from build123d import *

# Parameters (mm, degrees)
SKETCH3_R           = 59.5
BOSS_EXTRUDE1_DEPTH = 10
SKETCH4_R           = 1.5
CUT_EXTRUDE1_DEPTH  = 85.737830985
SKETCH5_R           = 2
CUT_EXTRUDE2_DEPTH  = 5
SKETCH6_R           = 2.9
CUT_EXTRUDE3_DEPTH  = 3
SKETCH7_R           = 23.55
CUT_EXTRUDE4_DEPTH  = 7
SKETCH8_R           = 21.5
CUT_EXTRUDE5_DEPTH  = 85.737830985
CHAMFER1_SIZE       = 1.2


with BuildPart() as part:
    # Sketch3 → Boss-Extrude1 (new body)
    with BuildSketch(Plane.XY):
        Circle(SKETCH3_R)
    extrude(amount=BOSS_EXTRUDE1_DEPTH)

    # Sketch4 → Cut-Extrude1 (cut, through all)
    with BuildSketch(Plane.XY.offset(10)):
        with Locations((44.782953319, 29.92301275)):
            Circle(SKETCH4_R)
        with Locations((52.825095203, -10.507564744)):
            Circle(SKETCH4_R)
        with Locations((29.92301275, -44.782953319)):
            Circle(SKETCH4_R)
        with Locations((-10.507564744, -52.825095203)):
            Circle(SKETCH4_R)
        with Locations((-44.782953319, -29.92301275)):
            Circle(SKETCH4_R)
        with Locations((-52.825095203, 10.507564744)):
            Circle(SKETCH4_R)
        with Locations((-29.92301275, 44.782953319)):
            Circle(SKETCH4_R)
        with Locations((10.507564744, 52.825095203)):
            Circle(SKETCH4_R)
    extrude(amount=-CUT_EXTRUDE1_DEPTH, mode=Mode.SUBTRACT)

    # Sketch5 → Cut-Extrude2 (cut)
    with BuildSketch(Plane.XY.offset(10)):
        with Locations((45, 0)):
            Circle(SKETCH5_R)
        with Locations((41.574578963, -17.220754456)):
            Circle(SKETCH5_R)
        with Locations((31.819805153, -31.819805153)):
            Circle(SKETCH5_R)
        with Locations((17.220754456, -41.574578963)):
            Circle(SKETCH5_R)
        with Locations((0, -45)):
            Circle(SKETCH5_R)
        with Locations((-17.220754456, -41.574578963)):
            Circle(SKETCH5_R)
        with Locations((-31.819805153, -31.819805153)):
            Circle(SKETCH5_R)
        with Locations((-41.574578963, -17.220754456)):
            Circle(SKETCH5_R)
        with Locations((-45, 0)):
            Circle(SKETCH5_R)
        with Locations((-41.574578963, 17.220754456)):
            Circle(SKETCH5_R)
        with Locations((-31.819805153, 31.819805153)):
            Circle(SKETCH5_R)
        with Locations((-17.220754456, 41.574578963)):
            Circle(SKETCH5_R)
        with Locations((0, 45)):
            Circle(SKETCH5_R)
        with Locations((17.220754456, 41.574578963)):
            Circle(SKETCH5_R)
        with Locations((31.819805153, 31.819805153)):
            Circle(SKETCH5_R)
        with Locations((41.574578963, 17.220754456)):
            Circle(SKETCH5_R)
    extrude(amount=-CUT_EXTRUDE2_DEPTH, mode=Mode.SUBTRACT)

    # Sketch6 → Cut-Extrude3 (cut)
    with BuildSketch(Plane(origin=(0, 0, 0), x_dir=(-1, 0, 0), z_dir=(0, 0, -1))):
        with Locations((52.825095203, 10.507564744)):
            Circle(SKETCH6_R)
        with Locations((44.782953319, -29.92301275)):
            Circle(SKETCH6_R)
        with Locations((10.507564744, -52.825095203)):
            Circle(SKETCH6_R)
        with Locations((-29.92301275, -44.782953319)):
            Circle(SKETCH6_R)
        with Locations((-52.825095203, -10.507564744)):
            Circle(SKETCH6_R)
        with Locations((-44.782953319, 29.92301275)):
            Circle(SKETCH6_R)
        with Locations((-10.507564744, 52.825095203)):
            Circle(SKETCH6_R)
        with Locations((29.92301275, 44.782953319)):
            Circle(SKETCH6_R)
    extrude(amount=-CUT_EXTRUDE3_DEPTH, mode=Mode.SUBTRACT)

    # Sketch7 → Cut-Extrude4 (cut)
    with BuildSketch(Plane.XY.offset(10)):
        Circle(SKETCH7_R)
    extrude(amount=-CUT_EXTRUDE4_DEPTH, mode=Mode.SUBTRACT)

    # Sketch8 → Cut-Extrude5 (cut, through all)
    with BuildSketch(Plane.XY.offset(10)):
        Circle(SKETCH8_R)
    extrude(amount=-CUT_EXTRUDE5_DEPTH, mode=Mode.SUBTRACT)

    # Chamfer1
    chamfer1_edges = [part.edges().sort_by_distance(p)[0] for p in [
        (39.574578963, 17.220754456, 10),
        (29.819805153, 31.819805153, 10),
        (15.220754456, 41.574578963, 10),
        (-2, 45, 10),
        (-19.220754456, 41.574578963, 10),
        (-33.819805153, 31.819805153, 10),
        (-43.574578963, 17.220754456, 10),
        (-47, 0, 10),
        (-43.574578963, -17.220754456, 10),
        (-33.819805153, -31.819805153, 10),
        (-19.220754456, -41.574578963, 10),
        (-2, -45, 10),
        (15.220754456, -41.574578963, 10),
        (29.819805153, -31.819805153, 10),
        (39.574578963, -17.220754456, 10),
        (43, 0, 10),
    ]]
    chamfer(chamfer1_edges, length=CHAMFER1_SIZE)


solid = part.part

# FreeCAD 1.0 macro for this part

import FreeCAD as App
import Part
import Sketcher

V = App.Vector


def edges_at(feature, points):
    """Names of the edges that pass closest to the given points."""
    edges = feature.Shape.Edges
    near = lambda p: min(range(len(edges)), key=lambda i: edges[i].distToShape(Part.Vertex(*p))[0])
    return sorted({f"Edge{near(p) + 1}" for p in points})

doc = App.newDocument("Part")
params = doc.addObject("Spreadsheet::Sheet", "Params")
for row, (alias, value) in enumerate([
    ("sketch1_diameter", "119 mm"),
    ("pad1_length", "10 mm"),
    ("sketch2_diameter", "3 mm"),
    ("sketch3_diameter", "4 mm"),
    ("pocket2_length", "5 mm"),
    ("sketch4_diameter", "5.8 mm"),
    ("pocket3_length", "3 mm"),
    ("sketch5_diameter", "47.1 mm"),
    ("pocket4_length", "7 mm"),
    ("sketch6_diameter", "43 mm"),
    ("chamfer_size", "1.2 mm"),
], start=1):
    params.set(f"A{row}", alias)
    params.set(f"B{row}", "=" + value)
    params.setAlias(f"B{row}", alias)

body = doc.addObject("PartDesign::Body", "Body")

# Sketch on XY plane
sketch1 = doc.addObject("Sketcher::SketchObject", "Sketch")
body.addObject(sketch1)
sketch1.AttachmentSupport = (doc.XY_Plane, [""])
sketch1.MapMode = "FlatFace"
sketch1.addGeometry(Part.Circle(V(0, 0, 0), V(0, 0, 1), 60), False)
sketch1.addConstraint([
    Sketcher.Constraint("Coincident", 0, 3, -1, 1),
    Sketcher.Constraint("Diameter", 0, 119.0),
])
sketch1.setExpression("Constraints[1]", "Params.sketch1_diameter")
pad1 = doc.addObject("PartDesign::Pad", "Pad")
body.addObject(pad1)
pad1.Profile = sketch1
pad1.setExpression("Length", "Params.pad1_length")

# Sketch on XY plane
sketch2 = doc.addObject("Sketcher::SketchObject", "Sketch001")
body.addObject(sketch2)
sketch2.AttachmentSupport = (doc.XY_Plane, [""])
sketch2.MapMode = "FlatFace"
sketch2.AttachmentOffset = App.Placement(V(0, 0, 10), App.Rotation())
sketch2.addGeometry([
    Part.Circle(V(44.8, 29.9, 0), V(0, 0, 1), 1.5),  # 0
    Part.Circle(V(52.8, -10.5, 0), V(0, 0, 1), 1.5),  # 1
    Part.Circle(V(29.9, -44.8, 0), V(0, 0, 1), 1.5),  # 2
    Part.Circle(V(-10.5, -52.8, 0), V(0, 0, 1), 1.5),  # 3
    Part.Circle(V(-44.8, -29.9, 0), V(0, 0, 1), 1.5),  # 4
    Part.Circle(V(-52.8, 10.5, 0), V(0, 0, 1), 1.5),  # 5
    Part.Circle(V(-29.9, 44.8, 0), V(0, 0, 1), 1.5),  # 6
    Part.Circle(V(10.5, 52.8, 0), V(0, 0, 1), 1.5),  # 7
], False)
sketch2.addConstraint([
    Sketcher.Constraint("Equal", 0, 1),
    Sketcher.Constraint("Equal", 1, 2),
    Sketcher.Constraint("Equal", 2, 3),
    Sketcher.Constraint("Equal", 3, 4),
    Sketcher.Constraint("Equal", 4, 5),
    Sketcher.Constraint("Equal", 5, 6),
    Sketcher.Constraint("Equal", 6, 7),
    Sketcher.Constraint("Symmetric", 0, 3, 4, 3, -1, 1),
    Sketcher.Constraint("Symmetric", 1, 3, 5, 3, -1, 1),
    Sketcher.Constraint("Symmetric", 2, 3, 6, 3, -1, 1),
    Sketcher.Constraint("Symmetric", 3, 3, 7, 3, -1, 1),
    Sketcher.Constraint("Diameter", 0, 3.0),
    Sketcher.Constraint("DistanceX", 0, 3, 1, 3, 8.042142),
    Sketcher.Constraint("DistanceY", 2, 3, 1, 3, 34.275389),
    Sketcher.Constraint("DistanceX", 2, 3, 0, 3, 14.859941),
    Sketcher.Constraint("DistanceY", 3, 3, 2, 3, 8.042142),
    Sketcher.Constraint("DistanceX", 3, 3, 1, 3, 63.33266),
    Sketcher.Constraint("DistanceX", 4, 3, 3, 3, 34.275389),
    Sketcher.Constraint("DistanceY", 2, 3, 4, 3, 14.859941),
    Sketcher.Constraint("DistanceY", 3, 3, 5, 3, 63.33266),
])
sketch2.setExpression("Constraints[11]", "Params.sketch2_diameter")
pocket1 = doc.addObject("PartDesign::Pocket", "Pocket")
body.addObject(pocket1)
pocket1.Profile = sketch2
pocket1.Type = "ThroughAll"

# Sketch on XY plane
sketch3 = doc.addObject("Sketcher::SketchObject", "Sketch002")
body.addObject(sketch3)
sketch3.AttachmentSupport = (doc.XY_Plane, [""])
sketch3.MapMode = "FlatFace"
sketch3.AttachmentOffset = App.Placement(V(0, 0, 10), App.Rotation())
sketch3.addGeometry([
    Part.Circle(V(45, 0, 0), V(0, 0, 1), 2),  # 0
    Part.Circle(V(41.6, -17.2, 0), V(0, 0, 1), 2),  # 1
    Part.Circle(V(31.8, -31.8, 0), V(0, 0, 1), 2),  # 2
    Part.Circle(V(17.2, -41.6, 0), V(0, 0, 1), 2),  # 3
    Part.Circle(V(0, -45, 0), V(0, 0, 1), 2),  # 4
    Part.Circle(V(-17.2, -41.6, 0), V(0, 0, 1), 2),  # 5
    Part.Circle(V(-31.8, -31.8, 0), V(0, 0, 1), 2),  # 6
    Part.Circle(V(-41.6, -17.2, 0), V(0, 0, 1), 2),  # 7
    Part.Circle(V(-45, 0, 0), V(0, 0, 1), 2),  # 8
    Part.Circle(V(-41.6, 17.2, 0), V(0, 0, 1), 2),  # 9
    Part.Circle(V(-31.8, 31.8, 0), V(0, 0, 1), 2),  # 10
    Part.Circle(V(-17.2, 41.6, 0), V(0, 0, 1), 2),  # 11
    Part.Circle(V(0, 45, 0), V(0, 0, 1), 2),  # 12
    Part.Circle(V(17.2, 41.6, 0), V(0, 0, 1), 2),  # 13
    Part.Circle(V(31.8, 31.8, 0), V(0, 0, 1), 2),  # 14
    Part.Circle(V(41.6, 17.2, 0), V(0, 0, 1), 2),  # 15
], False)
sketch3.addConstraint([
    Sketcher.Constraint("Equal", 0, 1),
    Sketcher.Constraint("Equal", 1, 2),
    Sketcher.Constraint("Equal", 2, 3),
    Sketcher.Constraint("Equal", 3, 4),
    Sketcher.Constraint("Equal", 4, 5),
    Sketcher.Constraint("Equal", 5, 6),
    Sketcher.Constraint("Equal", 6, 7),
    Sketcher.Constraint("Equal", 7, 8),
    Sketcher.Constraint("Equal", 8, 9),
    Sketcher.Constraint("Equal", 9, 10),
    Sketcher.Constraint("Equal", 10, 11),
    Sketcher.Constraint("Equal", 11, 12),
    Sketcher.Constraint("Equal", 12, 13),
    Sketcher.Constraint("Equal", 13, 14),
    Sketcher.Constraint("Equal", 14, 15),
    Sketcher.Constraint("Symmetric", 0, 3, 8, 3, -1, 1),
    Sketcher.Constraint("Symmetric", 1, 3, 9, 3, -1, 1),
    Sketcher.Constraint("Symmetric", 2, 3, 10, 3, -1, 1),
    Sketcher.Constraint("Symmetric", 3, 3, 11, 3, -1, 1),
    Sketcher.Constraint("Symmetric", 4, 3, 12, 3, -1, 1),
    Sketcher.Constraint("Symmetric", 5, 3, 13, 3, -1, 1),
    Sketcher.Constraint("Symmetric", 6, 3, 14, 3, -1, 1),
    Sketcher.Constraint("Symmetric", 7, 3, 15, 3, -1, 1),
    Sketcher.Constraint("Symmetric", 3, 3, 5, 3, -2),
    Sketcher.Constraint("Symmetric", 2, 3, 6, 3, -2),
    Sketcher.Constraint("Symmetric", 1, 3, 7, 3, -2),
    Sketcher.Constraint("PointOnObject", 0, 3, -1),
    Sketcher.Constraint("PointOnObject", 4, 3, -2),
    Sketcher.Constraint("Diameter", 0, 4.0),
    Sketcher.Constraint("DistanceX", -1, 1, 0, 3, 45.0),
    Sketcher.Constraint("DistanceY", 4, 3, -1, 1, 45.0),
    Sketcher.Constraint("DistanceX", -1, 1, 1, 3, 41.574579),
    Sketcher.Constraint("DistanceY", 3, 3, -1, 1, 41.574579),
    Sketcher.Constraint("DistanceY", 2, 3, 1, 3, 14.599051),
    Sketcher.Constraint("DistanceX", 3, 3, 2, 3, 14.599051),
    Sketcher.Constraint("DistanceX", 5, 3, 3, 3, 34.441509),
    Sketcher.Constraint("DistanceY", 7, 3, 9, 3, 34.441509),
])
sketch3.setExpression("Constraints[28]", "Params.sketch3_diameter")
pocket2 = doc.addObject("PartDesign::Pocket", "Pocket001")
body.addObject(pocket2)
pocket2.Profile = sketch3
pocket2.setExpression("Length", "Params.pocket2_length")

# Sketch on XY plane
sketch4 = doc.addObject("Sketcher::SketchObject", "Sketch003")
body.addObject(sketch4)
sketch4.AttachmentSupport = (doc.XY_Plane, [""])
sketch4.MapMode = "FlatFace"
sketch4.addGeometry([
    Part.Circle(V(-52.8, 10.5, 0), V(0, 0, 1), 2.9),  # 0
    Part.Circle(V(-44.8, -29.9, 0), V(0, 0, 1), 2.9),  # 1
    Part.Circle(V(-10.5, -52.8, 0), V(0, 0, 1), 2.9),  # 2
    Part.Circle(V(29.9, -44.8, 0), V(0, 0, 1), 2.9),  # 3
    Part.Circle(V(52.8, -10.5, 0), V(0, 0, 1), 2.9),  # 4
    Part.Circle(V(44.8, 29.9, 0), V(0, 0, 1), 2.9),  # 5
    Part.Circle(V(10.5, 52.8, 0), V(0, 0, 1), 2.9),  # 6
    Part.Circle(V(-29.9, 44.8, 0), V(0, 0, 1), 2.9),  # 7
], False)
sketch4.addConstraint([
    Sketcher.Constraint("Equal", 0, 1),
    Sketcher.Constraint("Equal", 1, 2),
    Sketcher.Constraint("Equal", 2, 3),
    Sketcher.Constraint("Equal", 3, 4),
    Sketcher.Constraint("Equal", 4, 5),
    Sketcher.Constraint("Equal", 5, 6),
    Sketcher.Constraint("Equal", 6, 7),
    Sketcher.Constraint("Symmetric", 0, 3, 4, 3, -1, 1),
    Sketcher.Constraint("Symmetric", 1, 3, 5, 3, -1, 1),
    Sketcher.Constraint("Symmetric", 2, 3, 6, 3, -1, 1),
    Sketcher.Constraint("Symmetric", 3, 3, 7, 3, -1, 1),
    Sketcher.Constraint("Diameter", 0, 5.8),
    Sketcher.Constraint("DistanceX", 0, 3, 1, 3, 8.042142),
    Sketcher.Constraint("DistanceX", 1, 3, 2, 3, 34.275389),
    Sketcher.Constraint("DistanceY", 2, 3, 0, 3, 63.33266),
    Sketcher.Constraint("DistanceY", 2, 3, 3, 3, 8.042142),
    Sketcher.Constraint("DistanceY", 3, 3, 1, 3, 14.859941),
    Sketcher.Constraint("DistanceY", 3, 3, 4, 3, 34.275389),
    Sketcher.Constraint("DistanceX", 2, 3, 4, 3, 63.33266),
    Sketcher.Constraint("DistanceX", 3, 3, 5, 3, 14.859941),
])
sketch4.setExpression("Constraints[11]", "Params.sketch4_diameter")
pocket3 = doc.addObject("PartDesign::Pocket", "Pocket002")
body.addObject(pocket3)
pocket3.Profile = sketch4
pocket3.setExpression("Length", "Params.pocket3_length")
pocket3.Reversed = True

# Sketch on XY plane
sketch5 = doc.addObject("Sketcher::SketchObject", "Sketch004")
body.addObject(sketch5)
sketch5.AttachmentSupport = (doc.XY_Plane, [""])
sketch5.MapMode = "FlatFace"
sketch5.AttachmentOffset = App.Placement(V(0, 0, 10), App.Rotation())
sketch5.addGeometry(Part.Circle(V(0, 0, 0), V(0, 0, 1), 24), False)
sketch5.addConstraint([
    Sketcher.Constraint("Coincident", 0, 3, -1, 1),
    Sketcher.Constraint("Diameter", 0, 47.1),
])
sketch5.setExpression("Constraints[1]", "Params.sketch5_diameter")
pocket4 = doc.addObject("PartDesign::Pocket", "Pocket003")
body.addObject(pocket4)
pocket4.Profile = sketch5
pocket4.setExpression("Length", "Params.pocket4_length")

# Sketch on XY plane
sketch6 = doc.addObject("Sketcher::SketchObject", "Sketch005")
body.addObject(sketch6)
sketch6.AttachmentSupport = (doc.XY_Plane, [""])
sketch6.MapMode = "FlatFace"
sketch6.AttachmentOffset = App.Placement(V(0, 0, 10), App.Rotation())
sketch6.addGeometry(Part.Circle(V(0, 0, 0), V(0, 0, 1), 22), False)
sketch6.addConstraint([
    Sketcher.Constraint("Coincident", 0, 3, -1, 1),
    Sketcher.Constraint("Diameter", 0, 43.0),
])
sketch6.setExpression("Constraints[1]", "Params.sketch6_diameter")
pocket5 = doc.addObject("PartDesign::Pocket", "Pocket004")
body.addObject(pocket5)
pocket5.Profile = sketch6
pocket5.Type = "ThroughAll"
doc.recompute()

chamfer = doc.addObject("PartDesign::Chamfer", "Chamfer")
body.addObject(chamfer)
chamfer.Base = (pocket5, edges_at(pocket5, [
    (39.575, 17.221, 10),
    (29.82, 31.82, 10),
    (15.221, 41.575, 10),
    (-2, 45, 10),
    (-19.221, 41.575, 10),
    (-33.82, 31.82, 10),
    (-43.575, 17.221, 10),
    (-47, 0, 10),
    (-43.575, -17.221, 10),
    (-33.82, -31.82, 10),
    (-19.221, -41.575, 10),
    (-2, -45, 10),
    (15.221, -41.575, 10),
    (29.82, -31.82, 10),
    (39.575, -17.221, 10),
    (43, 0, 10),
]))
chamfer.setExpression("Size", "Params.chamfer_size")

doc.recompute()
